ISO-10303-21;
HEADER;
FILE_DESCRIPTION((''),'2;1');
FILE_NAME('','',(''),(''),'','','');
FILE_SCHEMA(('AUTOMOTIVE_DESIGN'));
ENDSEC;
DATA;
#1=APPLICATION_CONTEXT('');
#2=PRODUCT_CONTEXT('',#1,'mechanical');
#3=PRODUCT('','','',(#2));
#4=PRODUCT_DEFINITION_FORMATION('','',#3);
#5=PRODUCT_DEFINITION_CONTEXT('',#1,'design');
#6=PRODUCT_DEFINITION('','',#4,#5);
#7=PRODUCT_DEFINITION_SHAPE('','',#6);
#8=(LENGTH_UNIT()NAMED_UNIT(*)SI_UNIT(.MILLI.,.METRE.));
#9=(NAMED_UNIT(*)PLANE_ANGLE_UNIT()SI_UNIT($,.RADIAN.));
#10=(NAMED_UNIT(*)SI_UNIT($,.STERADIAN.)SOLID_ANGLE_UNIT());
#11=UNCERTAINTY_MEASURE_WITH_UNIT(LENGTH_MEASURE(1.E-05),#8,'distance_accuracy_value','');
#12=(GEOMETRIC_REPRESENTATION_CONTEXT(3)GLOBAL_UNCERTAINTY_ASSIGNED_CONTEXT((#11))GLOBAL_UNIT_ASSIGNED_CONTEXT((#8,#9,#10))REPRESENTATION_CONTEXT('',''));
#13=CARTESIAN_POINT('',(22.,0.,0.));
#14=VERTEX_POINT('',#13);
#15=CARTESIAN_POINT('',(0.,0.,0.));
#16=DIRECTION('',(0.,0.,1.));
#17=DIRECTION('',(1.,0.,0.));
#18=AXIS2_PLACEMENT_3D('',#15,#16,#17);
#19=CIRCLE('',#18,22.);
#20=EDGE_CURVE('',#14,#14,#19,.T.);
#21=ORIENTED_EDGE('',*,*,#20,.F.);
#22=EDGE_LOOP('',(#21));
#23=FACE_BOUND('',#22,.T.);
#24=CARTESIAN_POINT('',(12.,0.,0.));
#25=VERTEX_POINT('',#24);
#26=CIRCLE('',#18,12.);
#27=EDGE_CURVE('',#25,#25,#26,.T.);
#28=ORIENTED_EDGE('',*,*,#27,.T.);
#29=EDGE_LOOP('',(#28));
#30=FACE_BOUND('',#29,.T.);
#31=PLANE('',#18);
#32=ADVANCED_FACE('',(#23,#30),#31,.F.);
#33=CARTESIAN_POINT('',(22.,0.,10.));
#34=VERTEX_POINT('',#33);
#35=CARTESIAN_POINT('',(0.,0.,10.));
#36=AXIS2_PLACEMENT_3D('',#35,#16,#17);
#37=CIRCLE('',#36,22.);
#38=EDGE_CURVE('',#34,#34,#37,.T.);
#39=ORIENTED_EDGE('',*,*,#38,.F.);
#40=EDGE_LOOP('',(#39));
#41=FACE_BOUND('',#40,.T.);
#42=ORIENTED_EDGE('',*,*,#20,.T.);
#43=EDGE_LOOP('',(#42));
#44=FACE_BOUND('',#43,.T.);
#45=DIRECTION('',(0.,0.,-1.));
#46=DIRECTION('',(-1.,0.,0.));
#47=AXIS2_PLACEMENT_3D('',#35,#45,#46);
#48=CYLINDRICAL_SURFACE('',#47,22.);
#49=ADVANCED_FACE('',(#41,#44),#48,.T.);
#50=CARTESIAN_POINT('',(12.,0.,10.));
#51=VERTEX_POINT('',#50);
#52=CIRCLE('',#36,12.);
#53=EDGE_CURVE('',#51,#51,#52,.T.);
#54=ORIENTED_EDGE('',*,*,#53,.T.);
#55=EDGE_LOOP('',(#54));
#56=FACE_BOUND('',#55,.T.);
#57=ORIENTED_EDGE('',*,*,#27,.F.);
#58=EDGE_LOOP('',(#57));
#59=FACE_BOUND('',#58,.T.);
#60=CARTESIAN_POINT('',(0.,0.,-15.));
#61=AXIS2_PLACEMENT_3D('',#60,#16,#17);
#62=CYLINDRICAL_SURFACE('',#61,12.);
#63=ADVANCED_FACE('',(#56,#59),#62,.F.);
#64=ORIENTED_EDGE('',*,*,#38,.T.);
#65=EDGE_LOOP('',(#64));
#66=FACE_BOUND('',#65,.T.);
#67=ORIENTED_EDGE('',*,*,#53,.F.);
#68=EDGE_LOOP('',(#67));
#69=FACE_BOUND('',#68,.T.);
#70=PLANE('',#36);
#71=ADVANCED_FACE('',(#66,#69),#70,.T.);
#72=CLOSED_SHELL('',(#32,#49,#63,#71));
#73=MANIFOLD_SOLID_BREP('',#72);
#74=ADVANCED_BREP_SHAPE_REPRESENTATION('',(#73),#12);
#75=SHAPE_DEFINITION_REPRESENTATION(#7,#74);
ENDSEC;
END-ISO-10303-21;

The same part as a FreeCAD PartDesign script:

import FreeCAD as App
import Part
import Sketcher
Q = App.Units.Quantity

doc = App.newDocument("Part")
body = doc.addObject("PartDesign::Body", "Body")

# Sketch on XY plane
sketch1 = body.newObject("Sketcher::SketchObject", "Sketch")
sketch1.AttachmentSupport = (doc.getObject("XY_Plane"), [""])
sketch1.MapMode = "FlatFace"
sketch1.addGeometry(Part.Circle(App.Vector(0, 0, 0), App.Vector(0, 0, 1), 22), False)
sketch1.addConstraint([
    Sketcher.Constraint("Coincident", 0, 3, -1, 1),
    Sketcher.Constraint("Diameter", 0, Q("44 mm")),
])
pad1 = body.newObject("PartDesign::Pad", "Pad")
pad1.Profile = sketch1
pad1.Length = 10

# Sketch on XY plane
sketch2 = body.newObject("Sketcher::SketchObject", "Sketch001")
sketch2.AttachmentSupport = (doc.getObject("XY_Plane"), [""])
sketch2.MapMode = "FlatFace"
sketch2.AttachmentOffset = App.Placement(App.Vector(0, 0, 10), App.Rotation())
sketch2.addGeometry(Part.Circle(App.Vector(0, 0, 0), App.Vector(0, 0, 1), 12), False)
sketch2.addConstraint([
    Sketcher.Constraint("Coincident", 0, 3, -1, 1),
    Sketcher.Constraint("Diameter", 0, Q("24 mm")),
])
pocket1 = body.newObject("PartDesign::Pocket", "Pocket")
pocket1.Profile = sketch2
pocket1.Length = 25

doc.recompute()
